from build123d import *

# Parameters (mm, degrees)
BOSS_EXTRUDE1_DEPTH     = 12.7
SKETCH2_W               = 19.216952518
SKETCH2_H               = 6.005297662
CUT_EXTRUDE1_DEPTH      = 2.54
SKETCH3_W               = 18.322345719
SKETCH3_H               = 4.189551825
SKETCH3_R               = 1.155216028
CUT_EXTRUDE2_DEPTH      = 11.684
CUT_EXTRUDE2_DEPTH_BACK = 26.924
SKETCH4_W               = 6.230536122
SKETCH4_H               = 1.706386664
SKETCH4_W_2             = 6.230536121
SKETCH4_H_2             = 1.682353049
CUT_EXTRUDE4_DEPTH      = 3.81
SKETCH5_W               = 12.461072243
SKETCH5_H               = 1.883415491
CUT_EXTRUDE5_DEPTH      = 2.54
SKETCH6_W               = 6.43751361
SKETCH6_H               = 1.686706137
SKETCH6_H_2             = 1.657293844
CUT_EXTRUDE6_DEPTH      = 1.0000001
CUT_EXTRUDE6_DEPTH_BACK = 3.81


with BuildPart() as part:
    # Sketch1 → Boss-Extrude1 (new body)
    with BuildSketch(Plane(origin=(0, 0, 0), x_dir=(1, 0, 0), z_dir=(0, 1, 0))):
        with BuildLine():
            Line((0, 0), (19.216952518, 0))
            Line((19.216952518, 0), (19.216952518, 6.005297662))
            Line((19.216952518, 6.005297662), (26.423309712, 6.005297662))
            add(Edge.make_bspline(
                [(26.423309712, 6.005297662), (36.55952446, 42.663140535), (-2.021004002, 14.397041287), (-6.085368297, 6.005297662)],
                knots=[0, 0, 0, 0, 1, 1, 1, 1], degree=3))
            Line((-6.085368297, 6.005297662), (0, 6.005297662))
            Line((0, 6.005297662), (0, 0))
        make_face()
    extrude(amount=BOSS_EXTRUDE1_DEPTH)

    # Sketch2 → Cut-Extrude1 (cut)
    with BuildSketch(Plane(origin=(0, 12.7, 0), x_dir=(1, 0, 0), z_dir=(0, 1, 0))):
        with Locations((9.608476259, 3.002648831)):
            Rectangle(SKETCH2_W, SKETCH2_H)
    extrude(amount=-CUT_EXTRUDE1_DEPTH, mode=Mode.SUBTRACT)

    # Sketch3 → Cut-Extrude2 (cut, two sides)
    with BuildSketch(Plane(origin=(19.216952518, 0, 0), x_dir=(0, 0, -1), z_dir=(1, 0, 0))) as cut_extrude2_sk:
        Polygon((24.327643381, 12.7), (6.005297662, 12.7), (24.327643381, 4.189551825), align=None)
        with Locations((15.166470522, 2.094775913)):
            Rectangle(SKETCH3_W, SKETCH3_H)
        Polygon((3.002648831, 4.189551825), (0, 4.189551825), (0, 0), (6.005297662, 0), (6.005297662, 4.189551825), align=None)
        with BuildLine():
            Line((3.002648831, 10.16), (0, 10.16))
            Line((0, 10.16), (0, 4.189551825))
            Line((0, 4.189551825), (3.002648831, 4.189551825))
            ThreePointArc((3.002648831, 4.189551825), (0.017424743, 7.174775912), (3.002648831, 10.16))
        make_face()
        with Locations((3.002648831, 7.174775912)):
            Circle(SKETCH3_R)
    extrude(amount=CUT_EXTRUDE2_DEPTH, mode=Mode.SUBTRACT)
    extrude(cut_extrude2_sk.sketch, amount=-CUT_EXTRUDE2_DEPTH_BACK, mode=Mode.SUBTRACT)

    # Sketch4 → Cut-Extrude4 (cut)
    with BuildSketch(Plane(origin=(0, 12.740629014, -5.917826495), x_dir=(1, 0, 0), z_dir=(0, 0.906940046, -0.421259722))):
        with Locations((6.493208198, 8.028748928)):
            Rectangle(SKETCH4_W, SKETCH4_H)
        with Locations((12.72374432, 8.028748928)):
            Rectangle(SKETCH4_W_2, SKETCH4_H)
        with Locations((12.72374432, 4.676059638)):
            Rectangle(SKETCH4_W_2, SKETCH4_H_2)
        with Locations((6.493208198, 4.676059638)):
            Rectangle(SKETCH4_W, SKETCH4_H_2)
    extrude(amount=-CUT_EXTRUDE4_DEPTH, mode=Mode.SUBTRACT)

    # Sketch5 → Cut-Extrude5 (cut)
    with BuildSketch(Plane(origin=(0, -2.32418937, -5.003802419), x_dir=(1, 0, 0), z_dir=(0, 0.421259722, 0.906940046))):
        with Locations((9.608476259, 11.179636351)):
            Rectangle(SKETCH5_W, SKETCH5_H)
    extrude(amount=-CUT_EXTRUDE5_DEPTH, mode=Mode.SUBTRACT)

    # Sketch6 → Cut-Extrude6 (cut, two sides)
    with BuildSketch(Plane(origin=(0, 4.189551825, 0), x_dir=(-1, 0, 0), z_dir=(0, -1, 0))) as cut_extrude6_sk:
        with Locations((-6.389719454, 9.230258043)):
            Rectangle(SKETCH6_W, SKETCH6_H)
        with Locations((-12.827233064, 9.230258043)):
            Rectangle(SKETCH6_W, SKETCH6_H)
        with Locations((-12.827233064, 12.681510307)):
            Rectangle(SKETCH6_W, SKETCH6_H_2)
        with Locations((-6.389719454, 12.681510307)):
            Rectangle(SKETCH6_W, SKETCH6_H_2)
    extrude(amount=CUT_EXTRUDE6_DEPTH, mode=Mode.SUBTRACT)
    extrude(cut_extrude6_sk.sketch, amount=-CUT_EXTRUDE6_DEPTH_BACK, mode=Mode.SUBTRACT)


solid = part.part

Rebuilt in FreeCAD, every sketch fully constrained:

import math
import FreeCAD as App
import Part
import Sketcher
from FreeCAD import Vector
Q = App.Units.Quantity

doc = App.newDocument("Part")
body = doc.addObject("PartDesign::Body", "Body")

sketch1 = body.newObject("Sketcher::SketchObject", "Sketch")
sketch1.AttachmentSupport = (doc.getObject("XZ_Plane"), [""])
sketch1.MapMode = "FlatFace"
sketch1.addGeometry([
    Part.LineSegment(Vector(0, 0, 0), Vector(19.216953, 0, 0)),
    Part.LineSegment(Vector(19.216953, 0, 0), Vector(19.216953, -6.005298, 0)),
    Part.LineSegment(Vector(19.216953, -6.005298, 0), Vector(26.42331, -6.005298, 0)),
    Part.BSplineCurve([Vector(26.42331, -6.005298, 0), Vector(36.559524, -42.663141, 0), Vector(-2.021004, -14.397041, 0), Vector(-6.085368, -6.005298, 0)], [4, 4], [0, 1], False, 3, [1, 1, 1, 1], False),
    Part.LineSegment(Vector(-6.085368, -6.005298, 0), Vector(0, -6.005298, 0)),
    Part.LineSegment(Vector(0, -6.005298, 0), Vector(0, 0, 0)),
], False)
sketch1.addConstraint([
    Sketcher.Constraint("Block", 3),
    Sketcher.Constraint("Coincident", 0, 2, 1, 1),
    Sketcher.Constraint("Coincident", 1, 2, 2, 1),
    Sketcher.Constraint("Coincident", 2, 2, 3, 1),
    Sketcher.Constraint("Coincident", 3, 2, 4, 1),
    Sketcher.Constraint("Coincident", 4, 2, 5, 1),
    Sketcher.Constraint("Coincident", 5, 2, 0, 1),
    Sketcher.Constraint("Horizontal", 0),
    Sketcher.Constraint("Vertical", 1),
    Sketcher.Constraint("Horizontal", 2),
    Sketcher.Constraint("Horizontal", 4),
    Sketcher.Constraint("Vertical", 5),
    Sketcher.Constraint("Coincident", 5, 2, -1, 1),
    Sketcher.Constraint("DistanceX", 0, 1, 0, 2, Q("19.216953 mm")),
])
pad1 = body.newObject("PartDesign::Pad", "Pad")
pad1.Profile = sketch1
pad1.Length = Q("0.5 in")
pad1.Reversed = True

sketch2 = body.newObject("Sketcher::SketchObject", "Sketch001")
sketch2.AttachmentSupport = (doc.getObject("XZ_Plane"), [""])
sketch2.MapMode = "FlatFace"
sketch2.AttachmentOffset = App.Placement(Vector(0, 0, -0.5 * 25.4), App.Rotation())
sketch2.addGeometry([
    Part.LineSegment(Vector(0, -6, 0), Vector(0, 0, 0)),
    Part.LineSegment(Vector(0, 0, 0), Vector(19, 0, 0)),
    Part.LineSegment(Vector(19, 0, 0), Vector(19, -6, 0)),
    Part.LineSegment(Vector(19, -6, 0), Vector(0, -6, 0)),
], False)
sketch2.addConstraint([
    Sketcher.Constraint("Coincident", 0, 2, 1, 1),
    Sketcher.Constraint("Coincident", 1, 2, 2, 1),
    Sketcher.Constraint("Coincident", 2, 2, 3, 1),
    Sketcher.Constraint("Coincident", 3, 2, 0, 1),
    Sketcher.Constraint("Vertical", 0),
    Sketcher.Constraint("Horizontal", 1),
    Sketcher.Constraint("Vertical", 2),
    Sketcher.Constraint("Horizontal", 3),
    Sketcher.Constraint("Coincident", 0, 2, -1, 1),
    Sketcher.Constraint("DistanceX", 1, 1, 1, 2, Q("19.216953 mm")),
    Sketcher.Constraint("DistanceY", 0, 1, 0, 2, Q("6.005298 mm")),
])
pocket1 = body.newObject("PartDesign::Pocket", "Pocket")
pocket1.Profile = sketch2
pocket1.Length = Q("0.1 in")
pocket1.Reversed = True

sketch3 = body.newObject("Sketcher::SketchObject", "Sketch002")
sketch3.AttachmentSupport = (doc.getObject("YZ_Plane"), [""])
sketch3.MapMode = "FlatFace"
sketch3.AttachmentOffset = App.Placement(Vector(0, 0, 19.216953), App.Rotation())
sketch3.addGeometry([
    Part.LineSegment(Vector(12.7, -24.3, 0), Vector(12.7, -6, 0)),
    Part.LineSegment(Vector(12.7, -6, 0), Vector(4.2, -24.3, 0)),
    Part.LineSegment(Vector(4.2, -24.3, 0), Vector(12.7, -24.3, 0)),
    Part.LineSegment(Vector(0, -6, 0), Vector(0, -24.3, 0)),
    Part.LineSegment(Vector(0, -24.3, 0), Vector(4.2, -24.3, 0)),
    Part.LineSegment(Vector(4.2, -24.3, 0), Vector(4.2, -6, 0)),
    Part.LineSegment(Vector(4.2, -6, 0), Vector(4.2, -3, 0)),
    Part.ArcOfCircle(Part.Circle(Vector(7.2, -3, 0), Vector(0, 0, 1), 3), math.radians(0), math.radians(180)),
    Part.LineSegment(Vector(10.2, -3, 0), Vector(10.2, 0, 0)),
    Part.LineSegment(Vector(10.2, 0, 0), Vector(0, 0, 0)),
    Part.LineSegment(Vector(0, 0, 0), Vector(0, -6, 0)),
    Part.Circle(Vector(7.2, -3, 0), Vector(0, 0, 1), 1.2),
], False)
sketch3.addConstraint([
    Sketcher.Constraint("Coincident", 0, 2, 1, 1),
    Sketcher.Constraint("Coincident", 1, 2, 2, 1),
    Sketcher.Constraint("Coincident", 2, 2, 0, 1),
    Sketcher.Constraint("Coincident", 3, 2, 4, 1),
    Sketcher.Constraint("Coincident", 4, 2, 5, 1),
    Sketcher.Constraint("Coincident", 5, 2, 6, 1),
    Sketcher.Constraint("Tangent", 6, 2, 7, 2),
    Sketcher.Constraint("Tangent", 7, 1, 8, 1),
    Sketcher.Constraint("Coincident", 8, 2, 9, 1),
    Sketcher.Constraint("Coincident", 9, 2, 10, 1),
    Sketcher.Constraint("Coincident", 10, 2, 3, 1),
    Sketcher.Constraint("Vertical", 0),
    Sketcher.Constraint("Horizontal", 2),
    Sketcher.Constraint("Vertical", 3),
    Sketcher.Constraint("Horizontal", 4),
    Sketcher.Constraint("Vertical", 5),
    Sketcher.Constraint("Vertical", 6),
    Sketcher.Constraint("Vertical", 8),
    Sketcher.Constraint("Horizontal", 9),
    Sketcher.Constraint("Vertical", 10),
    Sketcher.Constraint("Coincident", 9, 2, -1, 1),
    Sketcher.Constraint("Coincident", 11, 3, 7, 3),
    Sketcher.Constraint("Coincident", 4, 2, 1, 2),
    Sketcher.Constraint("Horizontal", 0, 2, 5, 2),
    Sketcher.Constraint("Horizontal", 5, 2, 10, 2),
    Sketcher.Constraint("Equal", 6, 8),
    Sketcher.Constraint("DistanceX", 9, 2, 9, 1, Q("0.4 in")),
    Sketcher.Constraint("DistanceX", -1, 1, 0, 2, Q("0.5 in")),
    Sketcher.Constraint("Diameter", 11, Q("2.310432 mm")),
    Sketcher.Constraint("Radius", 7, Q("2.985224 mm")),
    Sketcher.Constraint("DistanceY", 6, 1, 6, 2, Q("3.002649 mm")),
    Sketcher.Constraint("Distance", 1, Q("20.202378 mm")),
])
pocket2 = body.newObject("PartDesign::Pocket", "Pocket001")
pocket2.Profile = sketch3
pocket2.Type = "ThroughAll"
pocket2.Midplane = True

sketch4 = body.newObject("Sketcher::SketchObject", "Sketch003")
sketch4.Placement = App.Placement(Vector(0, 12.740629, -5.917826), App.Rotation(Vector(1, 0, 0), Vector(0, -0.421259722, -0.906940046), Vector(0, 0.906940046, -0.421259722), "ZXY"))
sketch4.addGeometry([
    Part.LineSegment(Vector(3.4, 8.9, 0), Vector(3.4, 7.2, 0)),
    Part.LineSegment(Vector(3.4, 7.2, 0), Vector(15.8, 7.2, 0)),
    Part.LineSegment(Vector(15.8, 7.2, 0), Vector(15.8, 8.9, 0)),
    Part.LineSegment(Vector(15.8, 8.9, 0), Vector(3.4, 8.9, 0)),
    Part.LineSegment(Vector(15.8, 3.8, 0), Vector(15.8, 5.5, 0)),
    Part.LineSegment(Vector(15.8, 5.5, 0), Vector(3.4, 5.5, 0)),
    Part.LineSegment(Vector(3.4, 5.5, 0), Vector(3.4, 3.8, 0)),
    Part.LineSegment(Vector(3.4, 3.8, 0), Vector(15.8, 3.8, 0)),
], False)
sketch4.addConstraint([
    Sketcher.Constraint("Coincident", 0, 2, 1, 1),
    Sketcher.Constraint("Coincident", 1, 2, 2, 1),
    Sketcher.Constraint("Coincident", 2, 2, 3, 1),
    Sketcher.Constraint("Coincident", 3, 2, 0, 1),
    Sketcher.Constraint("Coincident", 4, 2, 5, 1),
    Sketcher.Constraint("Coincident", 5, 2, 6, 1),
    Sketcher.Constraint("Coincident", 6, 2, 7, 1),
    Sketcher.Constraint("Coincident", 7, 2, 4, 1),
    Sketcher.Constraint("Vertical", 0),
    Sketcher.Constraint("Horizontal", 1),
    Sketcher.Constraint("Vertical", 2),
    Sketcher.Constraint("Horizontal", 3),
    Sketcher.Constraint("Vertical", 4),
    Sketcher.Constraint("Horizontal", 5),
    Sketcher.Constraint("Vertical", 6),
    Sketcher.Constraint("Horizontal", 7),
    Sketcher.Constraint("Vertical", 2, 2, 4, 2),
    Sketcher.Constraint("Vertical", 3, 2, 5, 2),
    Sketcher.Constraint("DistanceX", 1, 1, 1, 2, Q("12.461072 mm")),
    Sketcher.Constraint("DistanceY", 0, 2, 0, 1, Q("1.706387 mm")),
    Sketcher.Constraint("DistanceY", 4, 1, 4, 2, Q("1.682353 mm")),
    Sketcher.Constraint("DistanceX", -1, 1, 0, 2, Q("3.37794 mm")),
    Sketcher.Constraint("DistanceY", 4, 2, 1, 2, Q("1.658319 mm")),
    Sketcher.Constraint("DistanceY", -1, 1, 0, 2, Q("7.175556 mm")),
])
pocket3 = body.newObject("PartDesign::Pocket", "Pocket002")
pocket3.Profile = sketch4
pocket3.Length = Q("0.15 in")

sketch5 = body.newObject("Sketcher::SketchObject", "Sketch004")
sketch5.Placement = App.Placement(Vector(0, -2.324189, -5.003802), App.Rotation(Vector(1, 0, 0), Vector(0, 0.906940046, -0.421259722), Vector(0, 0.421259722, 0.906940046), "ZXY"))
sketch5.addGeometry([
    Part.LineSegment(Vector(3.4, 12.1, 0), Vector(3.4, 10.2, 0)),
    Part.LineSegment(Vector(3.4, 10.2, 0), Vector(15.8, 10.2, 0)),
    Part.LineSegment(Vector(15.8, 10.2, 0), Vector(15.8, 12.1, 0)),
    Part.LineSegment(Vector(15.8, 12.1, 0), Vector(3.4, 12.1, 0)),
], False)
sketch5.addConstraint([
    Sketcher.Constraint("Coincident", 0, 2, 1, 1),
    Sketcher.Constraint("Coincident", 1, 2, 2, 1),
    Sketcher.Constraint("Coincident", 2, 2, 3, 1),
    Sketcher.Constraint("Coincident", 3, 2, 0, 1),
    Sketcher.Constraint("Vertical", 0),
    Sketcher.Constraint("Horizontal", 1),
    Sketcher.Constraint("Vertical", 2),
    Sketcher.Constraint("Horizontal", 3),
    Sketcher.Constraint("DistanceX", 1, 1, 1, 2, Q("12.461072 mm")),
    Sketcher.Constraint("DistanceY", 0, 2, 0, 1, Q("1.883415 mm")),
    Sketcher.Constraint("DistanceX", -1, 1, 0, 2, Q("3.37794 mm")),
    Sketcher.Constraint("DistanceY", -1, 1, 0, 2, Q("10.237929 mm")),
])
pocket4 = body.newObject("PartDesign::Pocket", "Pocket003")
pocket4.Profile = sketch5
pocket4.Length = Q("0.1 in")

sketch6 = body.newObject("Sketcher::SketchObject", "Sketch005")
sketch6.AttachmentSupport = (doc.getObject("XZ_Plane"), [""])
sketch6.MapMode = "FlatFace"
sketch6.AttachmentOffset = App.Placement(Vector(0, 0, -4.189552), App.Rotation())
sketch6.addGeometry([
    Part.LineSegment(Vector(3.2, -8.4, 0), Vector(3.2, -10.1, 0)),
    Part.LineSegment(Vector(3.2, -10.1, 0), Vector(16, -10.1, 0)),
    Part.LineSegment(Vector(16, -10.1, 0), Vector(16, -8.4, 0)),
    Part.LineSegment(Vector(16, -8.4, 0), Vector(3.2, -8.4, 0)),
    Part.LineSegment(Vector(16, -13.5, 0), Vector(16, -11.9, 0)),
    Part.LineSegment(Vector(16, -11.9, 0), Vector(3.2, -11.9, 0)),
    Part.LineSegment(Vector(3.2, -11.9, 0), Vector(3.2, -13.5, 0)),
    Part.LineSegment(Vector(3.2, -13.5, 0), Vector(16, -13.5, 0)),
], False)
sketch6.addConstraint([
    Sketcher.Constraint("Coincident", 0, 2, 1, 1),
    Sketcher.Constraint("Coincident", 1, 2, 2, 1),
    Sketcher.Constraint("Coincident", 2, 2, 3, 1),
    Sketcher.Constraint("Coincident", 3, 2, 0, 1),
    Sketcher.Constraint("Coincident", 4, 2, 5, 1),
    Sketcher.Constraint("Coincident", 5, 2, 6, 1),
    Sketcher.Constraint("Coincident", 6, 2, 7, 1),
    Sketcher.Constraint("Coincident", 7, 2, 4, 1),
    Sketcher.Constraint("Vertical", 0),
    Sketcher.Constraint("Horizontal", 1),
    Sketcher.Constraint("Vertical", 2),
    Sketcher.Constraint("Horizontal", 3),
    Sketcher.Constraint("Vertical", 4),
    Sketcher.Constraint("Horizontal", 5),
    Sketcher.Constraint("Vertical", 6),
    Sketcher.Constraint("Horizontal", 7),
    Sketcher.Constraint("Vertical", 2, 2, 4, 2),
    Sketcher.Constraint("Vertical", 3, 2, 5, 2),
    Sketcher.Constraint("DistanceX", 1, 1, 1, 2, Q("12.875027 mm")),
    Sketcher.Constraint("DistanceY", 0, 2, 0, 1, Q("1.686706 mm")),
    Sketcher.Constraint("DistanceY", 4, 1, 4, 2, Q("1.657294 mm")),
    Sketcher.Constraint("DistanceY", 0, 2, -1, 1, Q("10.073611 mm")),
    Sketcher.Constraint("DistanceX", -1, 1, 1, 2, Q("16.04599 mm")),
    Sketcher.Constraint("DistanceY", 4, 2, 2, 2, Q("3.465958 mm")),
])
pocket5 = body.newObject("PartDesign::Pocket", "Pocket004")
pocket5.Profile = sketch6
pocket5.Type = "TwoLengths"
pocket5.Length = 1
pocket5.Length2 = Q("0.15 in")
pocket5.Reversed = True

doc.recompute()
